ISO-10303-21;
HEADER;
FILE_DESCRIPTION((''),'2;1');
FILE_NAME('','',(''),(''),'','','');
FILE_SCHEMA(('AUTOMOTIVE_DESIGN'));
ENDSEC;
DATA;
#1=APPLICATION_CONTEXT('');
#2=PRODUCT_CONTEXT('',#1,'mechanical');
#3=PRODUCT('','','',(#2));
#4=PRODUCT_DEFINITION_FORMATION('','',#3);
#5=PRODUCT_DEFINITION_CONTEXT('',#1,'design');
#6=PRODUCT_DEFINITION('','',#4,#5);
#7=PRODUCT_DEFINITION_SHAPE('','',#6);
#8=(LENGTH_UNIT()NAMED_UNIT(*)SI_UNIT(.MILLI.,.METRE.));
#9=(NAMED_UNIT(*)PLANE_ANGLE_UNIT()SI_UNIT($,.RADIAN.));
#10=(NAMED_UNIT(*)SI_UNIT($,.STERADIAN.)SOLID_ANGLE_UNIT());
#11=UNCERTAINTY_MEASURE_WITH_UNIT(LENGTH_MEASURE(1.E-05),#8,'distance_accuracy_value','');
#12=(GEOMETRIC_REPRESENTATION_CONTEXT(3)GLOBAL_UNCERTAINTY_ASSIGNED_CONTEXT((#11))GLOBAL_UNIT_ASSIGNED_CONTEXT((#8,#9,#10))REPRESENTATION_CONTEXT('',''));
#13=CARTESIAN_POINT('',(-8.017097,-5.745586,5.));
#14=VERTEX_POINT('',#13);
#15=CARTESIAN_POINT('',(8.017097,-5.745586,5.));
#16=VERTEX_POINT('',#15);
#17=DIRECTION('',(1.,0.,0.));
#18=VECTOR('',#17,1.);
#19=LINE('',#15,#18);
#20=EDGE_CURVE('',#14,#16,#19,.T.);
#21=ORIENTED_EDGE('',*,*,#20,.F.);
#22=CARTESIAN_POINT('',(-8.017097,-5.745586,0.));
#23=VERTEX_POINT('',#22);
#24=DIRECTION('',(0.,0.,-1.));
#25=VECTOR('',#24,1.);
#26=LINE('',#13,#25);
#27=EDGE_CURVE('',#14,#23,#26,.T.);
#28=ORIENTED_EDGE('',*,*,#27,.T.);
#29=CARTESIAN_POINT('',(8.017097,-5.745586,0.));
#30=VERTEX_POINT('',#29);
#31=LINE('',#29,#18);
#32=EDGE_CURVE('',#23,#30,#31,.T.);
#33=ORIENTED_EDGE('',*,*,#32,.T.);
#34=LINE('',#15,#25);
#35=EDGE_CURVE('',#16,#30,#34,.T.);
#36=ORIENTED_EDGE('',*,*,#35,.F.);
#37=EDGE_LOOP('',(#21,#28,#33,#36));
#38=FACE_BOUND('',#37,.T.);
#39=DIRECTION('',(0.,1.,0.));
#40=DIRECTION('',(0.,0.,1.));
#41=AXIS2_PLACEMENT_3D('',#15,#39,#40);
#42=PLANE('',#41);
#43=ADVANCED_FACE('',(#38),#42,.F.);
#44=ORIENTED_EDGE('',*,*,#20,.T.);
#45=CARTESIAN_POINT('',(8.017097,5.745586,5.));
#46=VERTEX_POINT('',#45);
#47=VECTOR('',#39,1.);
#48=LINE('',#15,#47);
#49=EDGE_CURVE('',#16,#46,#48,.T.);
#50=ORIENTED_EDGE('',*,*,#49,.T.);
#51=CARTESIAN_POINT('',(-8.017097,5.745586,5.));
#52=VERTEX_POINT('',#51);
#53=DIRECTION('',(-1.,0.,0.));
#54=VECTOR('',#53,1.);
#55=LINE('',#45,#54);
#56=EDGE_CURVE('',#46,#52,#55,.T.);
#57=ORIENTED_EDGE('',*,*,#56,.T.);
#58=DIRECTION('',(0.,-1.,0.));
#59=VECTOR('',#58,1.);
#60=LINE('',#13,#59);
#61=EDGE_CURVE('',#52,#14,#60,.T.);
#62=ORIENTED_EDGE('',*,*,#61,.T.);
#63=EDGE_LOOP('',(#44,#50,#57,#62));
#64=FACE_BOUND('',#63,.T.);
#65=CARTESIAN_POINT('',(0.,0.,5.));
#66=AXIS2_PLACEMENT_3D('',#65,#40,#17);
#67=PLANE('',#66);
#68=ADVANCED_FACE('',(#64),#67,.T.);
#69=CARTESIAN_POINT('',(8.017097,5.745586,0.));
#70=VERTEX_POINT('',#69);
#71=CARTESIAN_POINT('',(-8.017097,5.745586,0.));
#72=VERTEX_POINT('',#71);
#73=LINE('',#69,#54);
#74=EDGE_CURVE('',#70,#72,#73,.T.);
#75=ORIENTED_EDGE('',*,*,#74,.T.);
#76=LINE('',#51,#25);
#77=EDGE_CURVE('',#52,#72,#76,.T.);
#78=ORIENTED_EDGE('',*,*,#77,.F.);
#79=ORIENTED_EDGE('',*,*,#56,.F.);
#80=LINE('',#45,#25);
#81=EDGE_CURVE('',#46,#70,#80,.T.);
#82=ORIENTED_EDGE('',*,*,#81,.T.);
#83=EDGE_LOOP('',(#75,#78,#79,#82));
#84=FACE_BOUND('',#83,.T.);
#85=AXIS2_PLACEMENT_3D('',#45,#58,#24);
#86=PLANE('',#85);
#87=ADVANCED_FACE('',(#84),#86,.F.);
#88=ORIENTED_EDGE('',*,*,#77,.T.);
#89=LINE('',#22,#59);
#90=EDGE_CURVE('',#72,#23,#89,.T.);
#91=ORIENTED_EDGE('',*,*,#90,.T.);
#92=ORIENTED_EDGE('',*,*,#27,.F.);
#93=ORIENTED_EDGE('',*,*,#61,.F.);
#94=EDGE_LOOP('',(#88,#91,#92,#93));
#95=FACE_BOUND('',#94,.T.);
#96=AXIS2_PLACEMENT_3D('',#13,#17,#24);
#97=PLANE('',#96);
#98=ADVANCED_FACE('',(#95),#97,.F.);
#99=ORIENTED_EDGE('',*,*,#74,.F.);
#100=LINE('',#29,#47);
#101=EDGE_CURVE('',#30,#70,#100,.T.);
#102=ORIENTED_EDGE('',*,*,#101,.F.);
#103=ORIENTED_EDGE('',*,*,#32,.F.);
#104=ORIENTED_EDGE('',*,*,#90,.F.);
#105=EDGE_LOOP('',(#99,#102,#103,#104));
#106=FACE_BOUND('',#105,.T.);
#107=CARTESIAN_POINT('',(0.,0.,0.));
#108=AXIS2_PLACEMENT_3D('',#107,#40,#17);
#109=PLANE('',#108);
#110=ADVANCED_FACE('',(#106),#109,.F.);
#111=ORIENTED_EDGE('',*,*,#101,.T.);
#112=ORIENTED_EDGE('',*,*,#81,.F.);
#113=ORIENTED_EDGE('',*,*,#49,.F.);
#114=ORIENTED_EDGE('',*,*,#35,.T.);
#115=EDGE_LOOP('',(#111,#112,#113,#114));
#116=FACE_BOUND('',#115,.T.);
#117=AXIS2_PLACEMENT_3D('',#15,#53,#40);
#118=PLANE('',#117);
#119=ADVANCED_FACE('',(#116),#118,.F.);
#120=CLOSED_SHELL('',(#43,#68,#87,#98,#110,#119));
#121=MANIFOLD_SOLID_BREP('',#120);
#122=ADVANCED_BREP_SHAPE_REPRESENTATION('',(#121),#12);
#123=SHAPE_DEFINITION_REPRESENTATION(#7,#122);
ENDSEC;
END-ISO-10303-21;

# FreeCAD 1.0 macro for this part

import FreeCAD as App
import Part
import Sketcher
from FreeCAD import Vector

doc = App.newDocument("Part")
params = doc.addObject("Spreadsheet::Sheet", "Params")
for row, (alias, value) in enumerate([
    ("pad1_length", "5 mm"),
], start=1):
    params.set(f"A{row}", alias)
    params.set(f"B{row}", "=" + value)
    params.setAlias(f"B{row}", alias)

body = doc.addObject("PartDesign::Body", "Body")

# Sketch on XY plane
sketch1 = body.newObject("Sketcher::SketchObject", "Sketch")
sketch1.AttachmentSupport = (doc.getObject("XY_Plane"), [""])
sketch1.MapMode = "FlatFace"
sketch1.addGeometry(Part.LineSegment(Vector(-8, 6, 0), Vector(-8, -6, 0)), False)
sketch1.addGeometry(Part.LineSegment(Vector(-8, -6, 0), Vector(8, -6, 0)), False)
sketch1.addGeometry(Part.LineSegment(Vector(8, -6, 0), Vector(8, 6, 0)), False)
sketch1.addGeometry(Part.LineSegment(Vector(8, 6, 0), Vector(-8, 6, 0)), False)
sketch1.addConstraint(Sketcher.Constraint("Coincident", 0, 2, 1, 1))
sketch1.addConstraint(Sketcher.Constraint("Coincident", 1, 2, 2, 1))
sketch1.addConstraint(Sketcher.Constraint("Coincident", 2, 2, 3, 1))
sketch1.addConstraint(Sketcher.Constraint("Coincident", 3, 2, 0, 1))
sketch1.addConstraint(Sketcher.Constraint("Vertical", 0))
sketch1.addConstraint(Sketcher.Constraint("Horizontal", 1))
sketch1.addConstraint(Sketcher.Constraint("Vertical", 2))
sketch1.addConstraint(Sketcher.Constraint("Horizontal", 3))
sketch1.addConstraint(Sketcher.Constraint("Symmetric", 0, 2, 2, 2, -1, 1))
sketch1.addConstraint(Sketcher.Constraint("DistanceX", 1, 1, 1, 2, 16.034194))
sketch1.addConstraint(Sketcher.Constraint("DistanceY", 0, 2, 0, 1, 11.491172))
pad1 = body.newObject("PartDesign::Pad", "Pad")
pad1.Profile = sketch1
pad1.setExpression("Length", "Params.pad1_length")

doc.recompute()
